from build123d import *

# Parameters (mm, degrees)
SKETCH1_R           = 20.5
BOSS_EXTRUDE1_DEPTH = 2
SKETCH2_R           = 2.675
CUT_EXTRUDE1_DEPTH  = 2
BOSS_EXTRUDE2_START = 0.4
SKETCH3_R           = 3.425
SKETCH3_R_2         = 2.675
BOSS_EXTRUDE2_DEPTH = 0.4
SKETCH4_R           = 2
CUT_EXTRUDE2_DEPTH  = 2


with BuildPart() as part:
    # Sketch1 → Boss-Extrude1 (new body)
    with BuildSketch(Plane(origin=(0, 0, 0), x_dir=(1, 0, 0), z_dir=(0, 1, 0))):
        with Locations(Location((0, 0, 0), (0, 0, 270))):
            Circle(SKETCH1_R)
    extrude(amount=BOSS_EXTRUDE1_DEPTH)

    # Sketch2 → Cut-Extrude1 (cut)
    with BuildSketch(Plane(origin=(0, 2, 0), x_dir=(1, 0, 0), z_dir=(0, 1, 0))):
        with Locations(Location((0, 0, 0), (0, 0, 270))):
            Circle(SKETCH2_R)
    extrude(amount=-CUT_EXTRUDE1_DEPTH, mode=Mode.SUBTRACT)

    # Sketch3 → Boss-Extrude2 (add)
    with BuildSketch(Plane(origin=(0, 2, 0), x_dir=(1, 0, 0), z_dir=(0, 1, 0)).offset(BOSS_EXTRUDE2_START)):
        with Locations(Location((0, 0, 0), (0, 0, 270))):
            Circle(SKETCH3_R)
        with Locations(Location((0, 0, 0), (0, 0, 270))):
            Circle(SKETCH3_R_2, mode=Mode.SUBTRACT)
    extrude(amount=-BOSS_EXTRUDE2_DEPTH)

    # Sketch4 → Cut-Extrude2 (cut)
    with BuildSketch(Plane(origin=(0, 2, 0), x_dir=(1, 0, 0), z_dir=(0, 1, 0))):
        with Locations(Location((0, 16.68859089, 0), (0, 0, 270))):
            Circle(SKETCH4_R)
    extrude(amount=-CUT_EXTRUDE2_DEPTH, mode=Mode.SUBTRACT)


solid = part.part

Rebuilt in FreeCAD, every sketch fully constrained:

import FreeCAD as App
import Part
import Sketcher

V = App.Vector

doc = App.newDocument("Part")
body = doc.addObject("PartDesign::Body", "Body")

sketch1 = body.newObject("Sketcher::SketchObject", "Sketch")
sketch1.AttachmentSupport = (doc.getObject("XZ_Plane"), [""])
sketch1.MapMode = "FlatFace"
sketch1.addGeometry(Part.Circle(V(0, 0, 0), V(0, 0, 1), 20.5), False)
sketch1.addConstraint(Sketcher.Constraint("Coincident", 0, 3, -1, 1))
sketch1.addConstraint(Sketcher.Constraint("Diameter", 0, 41.0))
pad1 = body.newObject("PartDesign::Pad", "Pad")
pad1.Profile = sketch1
pad1.Length = 2
pad1.Reversed = True

sketch2 = body.newObject("Sketcher::SketchObject", "Sketch001")
sketch2.AttachmentSupport = (doc.getObject("XZ_Plane"), [""])
sketch2.MapMode = "FlatFace"
sketch2.AttachmentOffset = App.Placement(V(0, 0, -2), App.Rotation())
sketch2.addGeometry(Part.Circle(V(0, 0, 0), V(0, 0, 1), 2.675), False)
sketch2.addConstraint(Sketcher.Constraint("Coincident", 0, 3, -1, 1))
sketch2.addConstraint(Sketcher.Constraint("Diameter", 0, 5.35))
pocket1 = body.newObject("PartDesign::Pocket", "Pocket")
pocket1.Profile = sketch2
pocket1.Length = 2
pocket1.Reversed = True

sketch3 = body.newObject("Sketcher::SketchObject", "Sketch002")
sketch3.AttachmentSupport = (doc.getObject("XZ_Plane"), [""])
sketch3.MapMode = "FlatFace"
sketch3.AttachmentOffset = App.Placement(V(0, 0, -2.4), App.Rotation())
sketch3.addGeometry(Part.Circle(V(0, 0, 0), V(0, 0, 1), 3.425), False)
sketch3.addGeometry(Part.Circle(V(0, 0, 0), V(0, 0, 1), 2.675), False)
sketch3.addConstraint(Sketcher.Constraint("Coincident", 0, 3, -1, 1))
sketch3.addConstraint(Sketcher.Constraint("Coincident", 1, 3, -1, 1))
sketch3.addConstraint(Sketcher.Constraint("Diameter", 0, 6.85))
sketch3.addConstraint(Sketcher.Constraint("Diameter", 1, 5.35))
pad2 = body.newObject("PartDesign::Pad", "Pad001")
pad2.Profile = sketch3
pad2.Length = 0.4

sketch4 = body.newObject("Sketcher::SketchObject", "Sketch003")
sketch4.AttachmentSupport = (doc.getObject("XZ_Plane"), [""])
sketch4.MapMode = "FlatFace"
sketch4.AttachmentOffset = App.Placement(V(0, 0, -2), App.Rotation())
sketch4.addGeometry(Part.Circle(V(0, -16.688591, 0), V(0, 0, 1), 2), False)
sketch4.addConstraint(Sketcher.Constraint("PointOnObject", 0, 3, -2))
sketch4.addConstraint(Sketcher.Constraint("Diameter", 0, 4.0))
sketch4.addConstraint(Sketcher.Constraint("DistanceY", 0, 3, -1, 1, 16.688591))
pocket2 = body.newObject("PartDesign::Pocket", "Pocket001")
pocket2.Profile = sketch4
pocket2.Length = 2
pocket2.Reversed = True

doc.recompute()
